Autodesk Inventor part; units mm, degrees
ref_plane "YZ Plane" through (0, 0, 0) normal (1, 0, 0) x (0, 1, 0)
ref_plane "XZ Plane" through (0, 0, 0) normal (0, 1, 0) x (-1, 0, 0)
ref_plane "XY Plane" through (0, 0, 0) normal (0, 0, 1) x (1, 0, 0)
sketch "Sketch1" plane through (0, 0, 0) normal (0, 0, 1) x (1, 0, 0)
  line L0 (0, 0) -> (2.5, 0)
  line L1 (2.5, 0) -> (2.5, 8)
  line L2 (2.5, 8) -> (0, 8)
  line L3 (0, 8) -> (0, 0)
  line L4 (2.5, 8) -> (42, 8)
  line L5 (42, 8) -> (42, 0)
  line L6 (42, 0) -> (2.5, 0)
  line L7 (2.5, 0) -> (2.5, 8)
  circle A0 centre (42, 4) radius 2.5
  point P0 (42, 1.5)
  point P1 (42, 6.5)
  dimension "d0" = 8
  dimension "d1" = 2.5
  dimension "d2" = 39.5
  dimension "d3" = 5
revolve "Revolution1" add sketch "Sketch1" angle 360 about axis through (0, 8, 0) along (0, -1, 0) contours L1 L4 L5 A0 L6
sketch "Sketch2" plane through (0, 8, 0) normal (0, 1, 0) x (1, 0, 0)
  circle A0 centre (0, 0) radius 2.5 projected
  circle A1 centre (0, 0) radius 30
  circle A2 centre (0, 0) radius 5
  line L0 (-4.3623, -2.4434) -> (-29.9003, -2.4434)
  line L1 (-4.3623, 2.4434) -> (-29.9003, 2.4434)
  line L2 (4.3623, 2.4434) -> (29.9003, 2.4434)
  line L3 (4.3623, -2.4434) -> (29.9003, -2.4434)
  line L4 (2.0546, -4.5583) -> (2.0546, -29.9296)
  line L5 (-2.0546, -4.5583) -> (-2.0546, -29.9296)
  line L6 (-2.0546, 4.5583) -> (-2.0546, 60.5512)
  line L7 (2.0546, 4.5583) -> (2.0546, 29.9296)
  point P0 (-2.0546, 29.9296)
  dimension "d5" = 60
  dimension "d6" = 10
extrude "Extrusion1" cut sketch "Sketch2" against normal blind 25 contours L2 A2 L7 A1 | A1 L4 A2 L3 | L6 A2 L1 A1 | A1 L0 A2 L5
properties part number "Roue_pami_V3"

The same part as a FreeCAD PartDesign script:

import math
import FreeCAD as App
import Part
import Sketcher

V = App.Vector
Q = App.Units.Quantity

doc = App.newDocument("Part")
body = doc.addObject("PartDesign::Body", "Body")

sketch1 = doc.addObject("Sketcher::SketchObject", "Sketch")
body.addObject(sketch1)
sketch1.AttachmentSupport = (doc.XY_Plane, [""])
sketch1.MapMode = "FlatFace"
sketch1.addGeometry([
    Part.LineSegment(V(2.5, 8, 0), V(2.5, 0, 0)),
    Part.LineSegment(V(2.5, 0, 0), V(42, 0, 0)),
    Part.LineSegment(V(42, 0, 0), V(42, 1.5, 0)),
    Part.ArcOfCircle(Part.Circle(V(42, 4, 0), V(0, 0, 1), 2.5), math.radians(90), math.radians(270)),
    Part.LineSegment(V(42, 6.5, 0), V(42, 8, 0)),
    Part.LineSegment(V(42, 8, 0), V(2.5, 8, 0)),
], False)
sketch1.addConstraint([
    Sketcher.Constraint("Coincident", 0, 2, 1, 1),
    Sketcher.Constraint("Coincident", 1, 2, 2, 1),
    Sketcher.Constraint("Coincident", 2, 2, 3, 2),
    Sketcher.Constraint("Coincident", 3, 1, 4, 1),
    Sketcher.Constraint("Coincident", 4, 2, 5, 1),
    Sketcher.Constraint("Coincident", 5, 2, 0, 1),
    Sketcher.Constraint("Vertical", 0),
    Sketcher.Constraint("Horizontal", 1),
    Sketcher.Constraint("Vertical", 2),
    Sketcher.Constraint("Vertical", 4),
    Sketcher.Constraint("Horizontal", 5),
    Sketcher.Constraint("PointOnObject", 0, 2, -1),
    Sketcher.Constraint("Vertical", 3, 3, 1, 2),
    Sketcher.Constraint("Vertical", 2, 2, 3, 1),
    Sketcher.Constraint("Equal", 2, 4),
    Sketcher.Constraint("Radius", 3, Q("2.5 mm")),
    Sketcher.Constraint("DistanceY", 0, 2, 0, 1, Q("8 mm")),
    Sketcher.Constraint("DistanceX", 1, 1, 1, 2, Q("39.5 mm")),
    Sketcher.Constraint("DistanceX", -1, 1, 0, 2, Q("2.5 mm")),
])
revolution = doc.addObject("PartDesign::Revolution", "Revolution")
body.addObject(revolution)
revolution.Profile = sketch1
revolution.ReferenceAxis = (sketch1, ["V_Axis"])
revolution.Angle = 360

sketch2 = doc.addObject("Sketcher::SketchObject", "Sketch001")
body.addObject(sketch2)
sketch2.AttachmentSupport = (doc.XZ_Plane, [""])
sketch2.MapMode = "FlatFace"
sketch2.AttachmentOffset = App.Placement(V(0, 0, -8), App.Rotation())
sketch2.addGeometry([
    Part.LineSegment(V(4.3623, -2.4434, 0), V(29.9003, -2.4434, 0)),
    Part.ArcOfCircle(Part.Circle(V(0, 0, 0), V(0, 0, 1), 30), math.radians(-86.072934), math.radians(-4.67173)),
    Part.LineSegment(V(2.0546, -29.9296, 0), V(2.0546, -4.5583, 0)),
    Part.ArcOfCircle(Part.Circle(V(0, 0, 0), V(0, 0, 1), 5), math.radians(-65.737091), math.radians(-29.253945)),
    Part.ArcOfCircle(Part.Circle(V(0, 0, 0), V(0, 0, 1), 30), math.radians(4.67173), math.radians(86.072934)),
    Part.LineSegment(V(29.9003, 2.4434, 0), V(4.3623, 2.4434, 0)),
    Part.ArcOfCircle(Part.Circle(V(0, 0, 0), V(0, 0, 1), 5), math.radians(29.253945), math.radians(65.737091)),
    Part.LineSegment(V(2.0546, 4.5583, 0), V(2.0546, 29.9296, 0)),
    Part.LineSegment(V(-2.0546, -4.5583, 0), V(-2.0546, -29.929561, 0)),
    Part.ArcOfCircle(Part.Circle(V(0, 0, 0), V(0, 0, 1), 30), math.radians(-175.32827), math.radians(-93.927071)),
    Part.LineSegment(V(-29.9003, -2.4434, 0), V(-4.3623, -2.4434, 0)),
    Part.ArcOfCircle(Part.Circle(V(0, 0, 0), V(0, 0, 1), 5), math.radians(-150.746055), math.radians(-114.262909)),
    Part.ArcOfCircle(Part.Circle(V(0, 0, 0), V(0, 0, 1), 30), math.radians(93.927066), math.radians(175.32827)),
    Part.LineSegment(V(-2.0546, 29.9296, 0), V(-2.0546, 4.5583, 0)),
    Part.ArcOfCircle(Part.Circle(V(0, 0, 0), V(0, 0, 1), 5), math.radians(114.262909), math.radians(150.746055)),
    Part.LineSegment(V(-4.3623, 2.4434, 0), V(-29.9003, 2.4434, 0)),
], False)
sketch2.addConstraint([
    Sketcher.Constraint("Coincident", 0, 2, 1, 2),
    Sketcher.Constraint("Coincident", 1, 1, 2, 1),
    Sketcher.Constraint("Coincident", 2, 2, 3, 1),
    Sketcher.Constraint("Coincident", 3, 2, 0, 1),
    Sketcher.Constraint("Coincident", 4, 1, 5, 1),
    Sketcher.Constraint("Coincident", 5, 2, 6, 1),
    Sketcher.Constraint("Coincident", 6, 2, 7, 1),
    Sketcher.Constraint("Coincident", 7, 2, 4, 2),
    Sketcher.Constraint("Coincident", 8, 2, 9, 2),
    Sketcher.Constraint("Coincident", 9, 1, 10, 1),
    Sketcher.Constraint("Coincident", 10, 2, 11, 1),
    Sketcher.Constraint("Coincident", 11, 2, 8, 1),
    Sketcher.Constraint("Coincident", 12, 1, 13, 1),
    Sketcher.Constraint("Coincident", 13, 2, 14, 1),
    Sketcher.Constraint("Coincident", 14, 2, 15, 1),
    Sketcher.Constraint("Coincident", 15, 2, 12, 2),
    Sketcher.Constraint("Horizontal", 0),
    Sketcher.Constraint("Vertical", 2),
    Sketcher.Constraint("Horizontal", 5),
    Sketcher.Constraint("Vertical", 7),
    Sketcher.Constraint("Vertical", 8),
    Sketcher.Constraint("Horizontal", 10),
    Sketcher.Constraint("Vertical", 13),
    Sketcher.Constraint("Horizontal", 15),
    Sketcher.Constraint("Coincident", 1, 3, -1, 1),
    Sketcher.Constraint("Coincident", 3, 3, -1, 1),
    Sketcher.Constraint("Coincident", 4, 3, -1, 1),
    Sketcher.Constraint("Coincident", 6, 3, -1, 1),
    Sketcher.Constraint("Coincident", 9, 3, -1, 1),
    Sketcher.Constraint("Coincident", 11, 3, -1, 1),
    Sketcher.Constraint("Coincident", 12, 3, -1, 1),
    Sketcher.Constraint("Coincident", 14, 3, -1, 1),
    Sketcher.Constraint("Equal", 1, 4),
    Sketcher.Constraint("Equal", 3, 6),
    Sketcher.Constraint("Equal", 4, 9),
    Sketcher.Constraint("Equal", 6, 11),
    Sketcher.Constraint("Equal", 9, 12),
    Sketcher.Constraint("Equal", 11, 14),
    Sketcher.Constraint("Horizontal", 1, 1, 8, 2),
    Sketcher.Constraint("Horizontal", 3, 2, 9, 1),
    Sketcher.Constraint("Horizontal", 7, 2, 12, 1),
    Sketcher.Constraint("Horizontal", 5, 2, 14, 2),
    Sketcher.Constraint("Vertical", 0, 2, 4, 1),
    Sketcher.Constraint("Vertical", 2, 2, 6, 2),
    Sketcher.Constraint("Radius", 1, Q("30 mm")),
    Sketcher.Constraint("Radius", 3, Q("5 mm")),
    Sketcher.Constraint("DistanceX", 0, 1, 0, 2, Q("25.538 mm")),
    Sketcher.Constraint("DistanceY", 2, 1, 2, 2, Q("25.3713 mm")),
])
pocket1 = doc.addObject("PartDesign::Pocket", "Pocket")
body.addObject(pocket1)
pocket1.Profile = sketch2
pocket1.Length = 25
pocket1.Reversed = True

doc.recompute()
